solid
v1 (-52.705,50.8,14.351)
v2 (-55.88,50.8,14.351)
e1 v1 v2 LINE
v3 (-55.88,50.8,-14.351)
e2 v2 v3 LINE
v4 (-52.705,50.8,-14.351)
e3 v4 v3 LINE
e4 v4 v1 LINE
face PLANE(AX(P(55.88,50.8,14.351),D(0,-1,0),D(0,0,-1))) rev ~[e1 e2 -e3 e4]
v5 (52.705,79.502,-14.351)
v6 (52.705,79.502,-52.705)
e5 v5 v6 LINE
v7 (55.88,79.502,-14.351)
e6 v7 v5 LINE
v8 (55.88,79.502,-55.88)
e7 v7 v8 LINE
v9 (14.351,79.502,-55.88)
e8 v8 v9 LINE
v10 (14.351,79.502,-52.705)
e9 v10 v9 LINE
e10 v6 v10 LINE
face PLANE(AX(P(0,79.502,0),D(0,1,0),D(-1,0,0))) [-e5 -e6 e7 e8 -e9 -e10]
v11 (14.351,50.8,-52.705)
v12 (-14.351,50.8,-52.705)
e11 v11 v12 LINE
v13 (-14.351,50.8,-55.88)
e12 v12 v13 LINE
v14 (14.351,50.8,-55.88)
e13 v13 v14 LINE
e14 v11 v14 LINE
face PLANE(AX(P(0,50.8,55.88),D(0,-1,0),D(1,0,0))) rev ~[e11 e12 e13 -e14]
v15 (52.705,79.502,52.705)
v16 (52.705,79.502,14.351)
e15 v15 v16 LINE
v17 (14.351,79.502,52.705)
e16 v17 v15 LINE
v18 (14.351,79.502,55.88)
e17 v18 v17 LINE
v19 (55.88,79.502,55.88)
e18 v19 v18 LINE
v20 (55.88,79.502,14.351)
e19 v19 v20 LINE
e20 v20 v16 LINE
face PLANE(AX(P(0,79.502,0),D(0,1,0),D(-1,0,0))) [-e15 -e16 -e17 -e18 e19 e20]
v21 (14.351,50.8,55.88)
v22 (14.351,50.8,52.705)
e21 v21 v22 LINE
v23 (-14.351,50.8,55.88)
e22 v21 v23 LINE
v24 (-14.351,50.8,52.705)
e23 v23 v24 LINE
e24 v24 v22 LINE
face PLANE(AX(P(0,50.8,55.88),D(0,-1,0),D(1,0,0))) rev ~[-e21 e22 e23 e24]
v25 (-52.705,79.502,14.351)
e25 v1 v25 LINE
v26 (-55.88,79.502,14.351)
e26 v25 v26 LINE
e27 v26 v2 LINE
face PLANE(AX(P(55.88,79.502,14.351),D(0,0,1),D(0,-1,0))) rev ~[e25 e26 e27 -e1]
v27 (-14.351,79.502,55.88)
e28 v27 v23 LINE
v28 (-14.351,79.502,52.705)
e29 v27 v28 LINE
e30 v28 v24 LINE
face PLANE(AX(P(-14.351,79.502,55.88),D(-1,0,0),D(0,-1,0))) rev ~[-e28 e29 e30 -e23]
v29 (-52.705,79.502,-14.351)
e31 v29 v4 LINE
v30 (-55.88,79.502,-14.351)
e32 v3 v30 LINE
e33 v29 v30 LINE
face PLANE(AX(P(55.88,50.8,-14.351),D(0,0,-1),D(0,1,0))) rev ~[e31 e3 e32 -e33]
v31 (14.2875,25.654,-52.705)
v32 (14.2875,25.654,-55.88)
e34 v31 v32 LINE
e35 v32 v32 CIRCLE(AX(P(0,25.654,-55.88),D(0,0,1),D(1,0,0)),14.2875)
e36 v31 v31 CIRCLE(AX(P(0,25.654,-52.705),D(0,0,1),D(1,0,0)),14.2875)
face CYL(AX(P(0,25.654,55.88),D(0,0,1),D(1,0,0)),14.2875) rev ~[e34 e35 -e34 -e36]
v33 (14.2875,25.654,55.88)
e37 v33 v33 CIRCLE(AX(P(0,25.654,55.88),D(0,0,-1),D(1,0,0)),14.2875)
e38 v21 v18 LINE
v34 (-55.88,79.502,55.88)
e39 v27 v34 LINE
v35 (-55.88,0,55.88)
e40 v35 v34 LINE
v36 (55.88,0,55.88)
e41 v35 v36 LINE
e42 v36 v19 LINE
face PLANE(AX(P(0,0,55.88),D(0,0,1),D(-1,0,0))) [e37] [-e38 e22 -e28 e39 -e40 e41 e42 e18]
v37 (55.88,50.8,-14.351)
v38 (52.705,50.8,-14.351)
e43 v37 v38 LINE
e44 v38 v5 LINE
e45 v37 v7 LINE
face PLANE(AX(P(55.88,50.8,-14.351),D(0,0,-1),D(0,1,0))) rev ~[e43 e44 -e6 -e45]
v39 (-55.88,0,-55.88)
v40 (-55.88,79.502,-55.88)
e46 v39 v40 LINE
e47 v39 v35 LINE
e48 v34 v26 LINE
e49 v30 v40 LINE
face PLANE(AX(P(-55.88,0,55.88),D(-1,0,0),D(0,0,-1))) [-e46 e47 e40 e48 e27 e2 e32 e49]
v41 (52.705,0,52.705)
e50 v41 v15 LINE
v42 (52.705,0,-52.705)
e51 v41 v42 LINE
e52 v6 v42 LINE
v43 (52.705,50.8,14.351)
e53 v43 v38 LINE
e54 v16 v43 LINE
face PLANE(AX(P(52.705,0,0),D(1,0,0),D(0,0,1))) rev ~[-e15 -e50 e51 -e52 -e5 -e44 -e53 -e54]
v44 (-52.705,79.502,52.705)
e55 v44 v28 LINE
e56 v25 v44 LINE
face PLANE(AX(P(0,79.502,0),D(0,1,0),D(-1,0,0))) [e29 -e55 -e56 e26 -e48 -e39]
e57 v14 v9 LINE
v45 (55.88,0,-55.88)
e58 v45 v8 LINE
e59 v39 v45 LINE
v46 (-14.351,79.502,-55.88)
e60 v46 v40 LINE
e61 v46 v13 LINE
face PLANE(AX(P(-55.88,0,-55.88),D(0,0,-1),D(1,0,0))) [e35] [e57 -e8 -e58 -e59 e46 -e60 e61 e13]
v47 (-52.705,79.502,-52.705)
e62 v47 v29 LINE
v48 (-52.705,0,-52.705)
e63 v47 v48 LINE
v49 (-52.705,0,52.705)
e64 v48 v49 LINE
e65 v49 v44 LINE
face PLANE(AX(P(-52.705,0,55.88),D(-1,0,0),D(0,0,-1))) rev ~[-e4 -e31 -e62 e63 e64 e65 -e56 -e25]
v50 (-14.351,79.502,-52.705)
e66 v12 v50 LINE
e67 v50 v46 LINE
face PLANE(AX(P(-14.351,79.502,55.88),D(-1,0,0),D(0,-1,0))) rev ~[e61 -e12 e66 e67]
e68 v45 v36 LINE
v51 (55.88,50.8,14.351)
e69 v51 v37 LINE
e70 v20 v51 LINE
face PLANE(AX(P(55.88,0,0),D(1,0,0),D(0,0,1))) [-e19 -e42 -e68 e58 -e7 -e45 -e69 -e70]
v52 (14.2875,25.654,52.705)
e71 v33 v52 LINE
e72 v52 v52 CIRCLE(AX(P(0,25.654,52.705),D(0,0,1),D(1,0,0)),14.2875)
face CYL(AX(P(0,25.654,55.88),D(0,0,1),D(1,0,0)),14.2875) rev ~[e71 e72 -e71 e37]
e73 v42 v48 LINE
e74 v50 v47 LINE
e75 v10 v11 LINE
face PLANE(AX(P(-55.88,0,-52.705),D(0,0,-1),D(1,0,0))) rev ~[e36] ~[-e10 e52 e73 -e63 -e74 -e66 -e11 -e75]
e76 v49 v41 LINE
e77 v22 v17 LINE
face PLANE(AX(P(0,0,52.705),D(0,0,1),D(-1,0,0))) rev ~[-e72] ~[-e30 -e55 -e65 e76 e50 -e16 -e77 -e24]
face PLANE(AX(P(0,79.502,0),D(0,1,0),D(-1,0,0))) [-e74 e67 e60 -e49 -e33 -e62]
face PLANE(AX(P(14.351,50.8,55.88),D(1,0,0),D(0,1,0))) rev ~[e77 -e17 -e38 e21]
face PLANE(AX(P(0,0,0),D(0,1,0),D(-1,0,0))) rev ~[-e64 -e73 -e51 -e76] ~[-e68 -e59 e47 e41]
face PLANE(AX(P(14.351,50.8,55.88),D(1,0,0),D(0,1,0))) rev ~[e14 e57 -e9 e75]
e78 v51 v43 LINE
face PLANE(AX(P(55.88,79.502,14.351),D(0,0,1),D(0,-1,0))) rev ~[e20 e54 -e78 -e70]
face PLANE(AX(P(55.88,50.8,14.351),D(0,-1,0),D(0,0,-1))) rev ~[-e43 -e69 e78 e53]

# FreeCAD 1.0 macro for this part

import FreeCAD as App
import Part
import Sketcher
Q = App.Units.Quantity


def faces_at(feature, points):
    """Names of the faces that lie closest to the given points."""
    faces = feature.Shape.Faces
    near = lambda p: min(range(len(faces)), key=lambda i: faces[i].distToShape(Part.Vertex(*p))[0])
    return sorted({f"Face{near(p) + 1}" for p in points})


def add_polygon(sketch, points):
    """Adds a closed chain of lines whose ends are joined by coincident constraints."""
    first, n = sketch.GeometryCount, len(points)
    for a, b in zip(points, points[1:] + points[:1]):
        sketch.addGeometry(Part.LineSegment(App.Vector(*a, 0), App.Vector(*b, 0)), False)
    for i in range(n):
        sketch.addConstraint(Sketcher.Constraint("Coincident", first + i, 2, first + (i + 1) % n, 1))

doc = App.newDocument("Part")
params = doc.addObject("Spreadsheet::Sheet", "Params")
for row, (alias, value) in enumerate([
    ("sketch1_width", "4.4 in"),
    ("pad1_length", "3.13 in"),
    ("thickness_wall", "0.125 in"),
    ("sketch2_diameter", "1.125 in"),
    ("sketch2_width", "1.13 in"),
    ("pocket1_length", "4.4 in"),
    ("sketch3_width", "1.13 in"),
    ("pocket2_length", "4.4 in"),
], start=1):
    params.set(f"A{row}", alias)
    params.set(f"B{row}", "=" + value)
    params.setAlias(f"B{row}", alias)

body = doc.addObject("PartDesign::Body", "Body")

# Sketch on XZ plane
sketch1 = body.newObject("Sketcher::SketchObject", "Sketch")
sketch1.AttachmentSupport = (doc.getObject("XZ_Plane"), [""])
sketch1.MapMode = "FlatFace"
add_polygon(sketch1, [(-56, 56), (56, 56), (56, -56), (-56, -56)])  # lines 0-3
sketch1.addConstraint(Sketcher.Constraint("Horizontal", 0))
sketch1.addConstraint(Sketcher.Constraint("Vertical", 1))
sketch1.addConstraint(Sketcher.Constraint("Horizontal", 2))
sketch1.addConstraint(Sketcher.Constraint("Vertical", 3))
sketch1.addConstraint(Sketcher.Constraint("Symmetric", 0, 2, 2, 2, -1, 1))
sketch1.addConstraint(Sketcher.Constraint("Equal", 2, 1))
sketch1.addConstraint(Sketcher.Constraint("DistanceX", 0, 1, 0, 2, Q("4.4 in")))
sketch1.setExpression("Constraints[10]", "Params.sketch1_width")
pad1 = body.newObject("PartDesign::Pad", "Pad")
pad1.Profile = sketch1
pad1.setExpression("Length", "Params.pad1_length")
pad1.Reversed = True
doc.recompute()

thickness = body.newObject("PartDesign::Thickness", "Thickness")
thickness.Base = (pad1, faces_at(pad1, [(-18.627, 0, -18.627), (-18.627, 79.502, -18.627)]))
thickness.setExpression("Value", "Params.thickness_wall")
thickness.Reversed = True
thickness.Join = "Intersection"

# Sketch on XY plane
sketch2 = body.newObject("Sketcher::SketchObject", "Sketch001")
sketch2.AttachmentSupport = (doc.getObject("XY_Plane"), [""])
sketch2.MapMode = "FlatFace"
sketch2.AttachmentOffset = App.Placement(App.Vector(0, 0, 2.2 * 25.4), App.Rotation())
add_polygon(sketch2, [(14, 51), (14, 80), (-14, 80), (-14, 51)])  # lines 0-3
sketch2.addGeometry(Part.Circle(App.Vector(0, 26, 0), App.Vector(0, 0, 1), 14), False)  # 4
sketch2.addConstraint(Sketcher.Constraint("Vertical", 0))
sketch2.addConstraint(Sketcher.Constraint("Horizontal", 1))
sketch2.addConstraint(Sketcher.Constraint("Vertical", 2))
sketch2.addConstraint(Sketcher.Constraint("Horizontal", 3))
sketch2.addConstraint(Sketcher.Constraint("PointOnObject", 4, 3, -2))
sketch2.addConstraint(Sketcher.Constraint("Equal", 3, 0))
sketch2.addConstraint(Sketcher.Constraint("Diameter", 4, Q("1.125 in")))
sketch2.addConstraint(Sketcher.Constraint("DistanceX", 1, 2, 1, 1, Q("1.13 in")))
sketch2.addConstraint(Sketcher.Constraint("DistanceY", -1, 1, 2, 2, Q("2 in")))
sketch2.addConstraint(Sketcher.Constraint("DistanceY", -1, 1, 4, 3, Q("1.01 in")))
sketch2.addConstraint(Sketcher.Constraint("DistanceX", -1, 1, 0, 2, Q("0.565 in")))
sketch2.setExpression("Constraints[10]", "Params.sketch2_diameter")
sketch2.setExpression("Constraints[11]", "Params.sketch2_width")
pocket1 = body.newObject("PartDesign::Pocket", "Pocket")
pocket1.Profile = sketch2
pocket1.setExpression("Length", "Params.pocket1_length")

# Sketch on YZ plane
sketch3 = body.newObject("Sketcher::SketchObject", "Sketch002")
sketch3.AttachmentSupport = (doc.getObject("YZ_Plane"), [""])
sketch3.MapMode = "FlatFace"
sketch3.AttachmentOffset = App.Placement(App.Vector(0, 0, 2.2 * 25.4), App.Rotation())
add_polygon(sketch3, [(80, -14), (80, 14), (51, 14), (51, -14)])  # lines 0-3
sketch3.addConstraint(Sketcher.Constraint("Vertical", 0))
sketch3.addConstraint(Sketcher.Constraint("Horizontal", 1))
sketch3.addConstraint(Sketcher.Constraint("Vertical", 2))
sketch3.addConstraint(Sketcher.Constraint("Horizontal", 3))
sketch3.addConstraint(Sketcher.Constraint("Equal", 3, 0))
sketch3.addConstraint(Sketcher.Constraint("DistanceX", 1, 2, 1, 1, Q("1.13 in")))
sketch3.addConstraint(Sketcher.Constraint("DistanceX", -1, 1, 1, 2, Q("2 in")))
sketch3.addConstraint(Sketcher.Constraint("DistanceY", -1, 1, 0, 2, Q("0.565 in")))
sketch3.setExpression("Constraints[9]", "Params.sketch3_width")
pocket2 = body.newObject("PartDesign::Pocket", "Pocket001")
pocket2.Profile = sketch3
pocket2.setExpression("Length", "Params.pocket2_length")

doc.recompute()
